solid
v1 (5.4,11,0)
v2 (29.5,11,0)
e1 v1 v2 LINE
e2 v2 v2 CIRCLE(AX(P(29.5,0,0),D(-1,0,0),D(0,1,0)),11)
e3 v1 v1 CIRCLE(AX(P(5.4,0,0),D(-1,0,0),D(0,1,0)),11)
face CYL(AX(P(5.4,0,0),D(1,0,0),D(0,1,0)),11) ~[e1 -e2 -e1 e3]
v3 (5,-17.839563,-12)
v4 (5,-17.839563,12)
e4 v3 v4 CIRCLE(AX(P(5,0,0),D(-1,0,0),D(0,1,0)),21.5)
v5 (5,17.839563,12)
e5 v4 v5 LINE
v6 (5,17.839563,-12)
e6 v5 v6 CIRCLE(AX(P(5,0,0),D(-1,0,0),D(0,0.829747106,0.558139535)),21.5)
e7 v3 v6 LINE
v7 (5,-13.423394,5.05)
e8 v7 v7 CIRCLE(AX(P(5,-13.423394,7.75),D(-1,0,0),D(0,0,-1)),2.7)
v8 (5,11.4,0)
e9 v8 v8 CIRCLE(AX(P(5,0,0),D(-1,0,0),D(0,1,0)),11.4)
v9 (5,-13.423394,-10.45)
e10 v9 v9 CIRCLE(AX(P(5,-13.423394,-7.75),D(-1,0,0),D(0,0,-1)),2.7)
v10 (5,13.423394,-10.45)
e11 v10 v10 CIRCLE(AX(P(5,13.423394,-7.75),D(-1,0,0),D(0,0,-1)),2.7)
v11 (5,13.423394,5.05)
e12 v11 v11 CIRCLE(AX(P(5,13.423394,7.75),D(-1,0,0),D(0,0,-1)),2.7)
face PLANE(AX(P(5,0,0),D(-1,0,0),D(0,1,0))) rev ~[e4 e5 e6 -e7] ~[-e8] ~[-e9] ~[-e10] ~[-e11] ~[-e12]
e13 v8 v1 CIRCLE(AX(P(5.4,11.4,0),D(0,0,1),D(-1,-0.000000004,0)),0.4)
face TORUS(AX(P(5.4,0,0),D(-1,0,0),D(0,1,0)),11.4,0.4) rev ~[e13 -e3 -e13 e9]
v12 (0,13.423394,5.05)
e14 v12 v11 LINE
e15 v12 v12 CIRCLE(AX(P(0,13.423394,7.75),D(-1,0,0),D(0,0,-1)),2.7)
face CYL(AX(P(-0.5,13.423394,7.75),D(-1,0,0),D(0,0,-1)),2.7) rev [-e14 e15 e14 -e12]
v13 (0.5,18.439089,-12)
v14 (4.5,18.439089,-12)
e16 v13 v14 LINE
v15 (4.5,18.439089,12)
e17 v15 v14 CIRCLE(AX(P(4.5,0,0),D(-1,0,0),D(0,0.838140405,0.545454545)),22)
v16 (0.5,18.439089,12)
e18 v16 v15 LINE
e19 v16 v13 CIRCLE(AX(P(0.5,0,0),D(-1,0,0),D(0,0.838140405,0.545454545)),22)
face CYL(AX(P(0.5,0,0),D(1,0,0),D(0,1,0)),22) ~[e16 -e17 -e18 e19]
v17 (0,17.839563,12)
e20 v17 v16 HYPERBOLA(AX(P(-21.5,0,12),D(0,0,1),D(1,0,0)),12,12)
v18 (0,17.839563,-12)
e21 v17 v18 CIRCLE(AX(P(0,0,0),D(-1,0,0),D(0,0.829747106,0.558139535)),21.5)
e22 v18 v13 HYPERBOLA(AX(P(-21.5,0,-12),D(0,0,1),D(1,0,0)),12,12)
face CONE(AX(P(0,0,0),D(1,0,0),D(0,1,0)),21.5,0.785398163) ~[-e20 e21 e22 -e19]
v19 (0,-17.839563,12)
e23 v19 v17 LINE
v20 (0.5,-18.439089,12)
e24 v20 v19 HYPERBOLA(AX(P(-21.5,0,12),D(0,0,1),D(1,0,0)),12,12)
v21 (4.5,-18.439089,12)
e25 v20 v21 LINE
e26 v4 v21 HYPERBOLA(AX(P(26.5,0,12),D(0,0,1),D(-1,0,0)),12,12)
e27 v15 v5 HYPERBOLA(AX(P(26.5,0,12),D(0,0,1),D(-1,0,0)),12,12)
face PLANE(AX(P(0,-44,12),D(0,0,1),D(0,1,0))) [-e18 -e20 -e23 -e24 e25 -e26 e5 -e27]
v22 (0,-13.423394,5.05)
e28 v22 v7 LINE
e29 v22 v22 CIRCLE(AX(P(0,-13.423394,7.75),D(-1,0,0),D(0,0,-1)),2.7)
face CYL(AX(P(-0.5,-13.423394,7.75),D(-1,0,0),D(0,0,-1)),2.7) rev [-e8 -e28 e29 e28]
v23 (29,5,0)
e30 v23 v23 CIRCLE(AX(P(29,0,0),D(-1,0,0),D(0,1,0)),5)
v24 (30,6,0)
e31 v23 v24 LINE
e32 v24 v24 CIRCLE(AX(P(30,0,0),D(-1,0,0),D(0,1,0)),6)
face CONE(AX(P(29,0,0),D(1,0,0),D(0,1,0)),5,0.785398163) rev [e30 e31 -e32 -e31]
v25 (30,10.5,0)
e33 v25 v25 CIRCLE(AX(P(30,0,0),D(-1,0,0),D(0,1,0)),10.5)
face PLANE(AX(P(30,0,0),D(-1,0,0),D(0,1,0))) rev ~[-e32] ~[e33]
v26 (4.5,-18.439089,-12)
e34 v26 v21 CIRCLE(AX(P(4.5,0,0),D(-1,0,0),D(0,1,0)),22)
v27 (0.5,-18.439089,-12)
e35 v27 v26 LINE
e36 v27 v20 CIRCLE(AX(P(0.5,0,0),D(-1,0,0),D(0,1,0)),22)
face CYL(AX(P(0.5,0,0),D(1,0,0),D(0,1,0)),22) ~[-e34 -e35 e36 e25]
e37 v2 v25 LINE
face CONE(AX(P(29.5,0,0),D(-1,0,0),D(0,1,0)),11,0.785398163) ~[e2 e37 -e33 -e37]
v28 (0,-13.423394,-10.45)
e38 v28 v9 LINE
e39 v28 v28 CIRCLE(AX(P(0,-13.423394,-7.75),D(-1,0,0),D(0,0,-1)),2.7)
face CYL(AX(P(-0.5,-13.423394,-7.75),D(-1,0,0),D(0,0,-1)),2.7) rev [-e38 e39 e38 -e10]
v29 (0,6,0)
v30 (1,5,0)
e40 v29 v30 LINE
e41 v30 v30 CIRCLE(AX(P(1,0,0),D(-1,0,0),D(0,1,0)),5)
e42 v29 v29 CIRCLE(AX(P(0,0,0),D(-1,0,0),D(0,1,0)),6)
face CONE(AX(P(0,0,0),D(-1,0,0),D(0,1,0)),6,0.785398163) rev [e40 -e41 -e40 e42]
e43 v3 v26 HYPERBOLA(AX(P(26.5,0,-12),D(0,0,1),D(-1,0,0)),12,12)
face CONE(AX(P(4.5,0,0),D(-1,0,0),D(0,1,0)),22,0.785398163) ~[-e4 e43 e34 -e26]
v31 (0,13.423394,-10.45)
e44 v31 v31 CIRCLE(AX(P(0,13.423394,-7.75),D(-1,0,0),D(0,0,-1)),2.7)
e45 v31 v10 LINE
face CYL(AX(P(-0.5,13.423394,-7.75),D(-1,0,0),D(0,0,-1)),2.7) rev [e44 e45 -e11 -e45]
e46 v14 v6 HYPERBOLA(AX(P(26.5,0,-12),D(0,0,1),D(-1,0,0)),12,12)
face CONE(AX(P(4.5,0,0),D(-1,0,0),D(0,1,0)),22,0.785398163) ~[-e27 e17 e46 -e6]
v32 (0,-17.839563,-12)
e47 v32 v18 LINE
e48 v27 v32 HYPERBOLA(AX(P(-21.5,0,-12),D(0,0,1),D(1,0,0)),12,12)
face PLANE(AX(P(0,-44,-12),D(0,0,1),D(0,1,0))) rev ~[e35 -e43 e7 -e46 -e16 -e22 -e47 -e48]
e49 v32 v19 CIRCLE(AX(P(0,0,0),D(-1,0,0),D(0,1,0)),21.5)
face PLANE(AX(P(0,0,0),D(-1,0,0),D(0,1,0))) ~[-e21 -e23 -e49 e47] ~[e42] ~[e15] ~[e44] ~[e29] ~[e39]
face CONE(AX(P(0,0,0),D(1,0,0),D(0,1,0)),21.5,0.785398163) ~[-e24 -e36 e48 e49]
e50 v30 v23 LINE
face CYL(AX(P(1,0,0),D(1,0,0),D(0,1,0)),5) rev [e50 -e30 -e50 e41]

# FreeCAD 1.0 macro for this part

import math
import FreeCAD as App
import Part
import Sketcher
Q = App.Units.Quantity

doc = App.newDocument("Part")
params = doc.addObject("Spreadsheet::Sheet", "Params")
for row, (alias, value) in enumerate([
    ("sketch1_radius", "0.4 mm"),
    ("sketch1_width", "30 mm"),
    ("sketch1_width2", "4 mm"),
    ("sketch1_width3", "24.1 mm"),
    ("sketch1_height", "21.5 mm"),
    ("revolution_angle", "360 deg"),
    ("sketch2_width", "30 mm"),
    ("sketch2_width2", "28 mm"),
    ("sketch2_height", "6 mm"),
    ("groove_angle", "360 deg"),
    ("sketch3_width", "132 mm"),
    ("sketch3_width2", "88 mm"),
    ("sketch3_height", "48 mm"),
    ("sketch3_height2", "24 mm"),
    ("sketch4_diameter", "5.4 mm"),
    ("pocket2_length", "6 mm"),
    ("sketch5_diameter", "5.4 mm"),
    ("pocket3_length", "6 mm"),
    ("sketch6_diameter", "5.4 mm"),
    ("pocket4_length", "6 mm"),
    ("sketch7_diameter", "5.4 mm"),
    ("pocket5_length", "6 mm"),
], start=1):
    params.set(f"A{row}", alias)
    params.set(f"B{row}", "=" + value)
    params.setAlias(f"B{row}", alias)

body = doc.addObject("PartDesign::Body", "Body")

# Sketch on XY plane
sketch1 = doc.addObject("Sketcher::SketchObject", "Sketch")
body.addObject(sketch1)
sketch1.AttachmentSupport = (doc.XY_Plane, [""])
sketch1.MapMode = "FlatFace"
sketch1.addGeometry(Part.LineSegment(App.Vector(0, 21.5, 0), App.Vector(0, 0, 0)), False)
sketch1.addGeometry(Part.LineSegment(App.Vector(0, 0, 0), App.Vector(30, 0, 0)), False)
sketch1.addGeometry(Part.LineSegment(App.Vector(30, 0, 0), App.Vector(30, 10.5, 0)), False)
sketch1.addGeometry(Part.LineSegment(App.Vector(30, 10.5, 0), App.Vector(29.5, 11, 0)), False)
sketch1.addGeometry(Part.LineSegment(App.Vector(29.5, 11, 0), App.Vector(5.4, 11, 0)), False)
sketch1.addGeometry(Part.ArcOfCircle(Part.Circle(App.Vector(5.4, 11.4, 0), App.Vector(0, 0, 1), 0.4), math.radians(-180), math.radians(-90)), False)
sketch1.addGeometry(Part.LineSegment(App.Vector(5, 11.4, 0), App.Vector(5, 21.5, 0)), False)
sketch1.addGeometry(Part.LineSegment(App.Vector(5, 21.5, 0), App.Vector(4.5, 22, 0)), False)
sketch1.addGeometry(Part.LineSegment(App.Vector(4.5, 22, 0), App.Vector(0.5, 22, 0)), False)
sketch1.addGeometry(Part.LineSegment(App.Vector(0.5, 22, 0), App.Vector(0, 21.5, 0)), False)
sketch1.addConstraint(Sketcher.Constraint("Coincident", 0, 2, 1, 1))
sketch1.addConstraint(Sketcher.Constraint("Coincident", 1, 2, 2, 1))
sketch1.addConstraint(Sketcher.Constraint("Coincident", 2, 2, 3, 1))
sketch1.addConstraint(Sketcher.Constraint("Coincident", 3, 2, 4, 1))
sketch1.addConstraint(Sketcher.Constraint("Tangent", 4, 2, 5, 2))
sketch1.addConstraint(Sketcher.Constraint("Tangent", 5, 1, 6, 1))
sketch1.addConstraint(Sketcher.Constraint("Coincident", 6, 2, 7, 1))
sketch1.addConstraint(Sketcher.Constraint("Coincident", 7, 2, 8, 1))
sketch1.addConstraint(Sketcher.Constraint("Coincident", 8, 2, 9, 1))
sketch1.addConstraint(Sketcher.Constraint("Coincident", 9, 2, 0, 1))
sketch1.addConstraint(Sketcher.Constraint("Vertical", 0))
sketch1.addConstraint(Sketcher.Constraint("Horizontal", 1))
sketch1.addConstraint(Sketcher.Constraint("Vertical", 2))
sketch1.addConstraint(Sketcher.Constraint("Horizontal", 4))
sketch1.addConstraint(Sketcher.Constraint("Vertical", 6))
sketch1.addConstraint(Sketcher.Constraint("Horizontal", 8))
sketch1.addConstraint(Sketcher.Constraint("Coincident", 0, 2, -1, 1))
sketch1.addConstraint(Sketcher.Constraint("Parallel", 3, 7))
sketch1.addConstraint(Sketcher.Constraint("Perpendicular", 7, 9))
sketch1.addConstraint(Sketcher.Constraint("Horizontal", 6, 2, 9, 2))
sketch1.addConstraint(Sketcher.Constraint("Equal", 3, 7))
sketch1.addConstraint(Sketcher.Constraint("Equal", 7, 9))
sketch1.addConstraint(Sketcher.Constraint("Radius", 5, Q("0.4 mm")))
sketch1.addConstraint(Sketcher.Constraint("DistanceX", 1, 1, 1, 2, Q("30 mm")))
sketch1.addConstraint(Sketcher.Constraint("DistanceX", 8, 2, 8, 1, Q("4 mm")))
sketch1.addConstraint(Sketcher.Constraint("DistanceX", 4, 2, 4, 1, Q("24.1 mm")))
sketch1.addConstraint(Sketcher.Constraint("DistanceY", 0, 2, 0, 1, Q("21.5 mm")))
sketch1.addConstraint(Sketcher.Constraint("DistanceY", 2, 1, 2, 2, Q("10.5 mm")))
sketch1.setExpression("Constraints[22]", "Params.sketch1_radius")
sketch1.setExpression("Constraints[23]", "Params.sketch1_width")
sketch1.setExpression("Constraints[24]", "Params.sketch1_width2")
sketch1.setExpression("Constraints[25]", "Params.sketch1_width3")
sketch1.setExpression("Constraints[26]", "Params.sketch1_height")
revolution = doc.addObject("PartDesign::Revolution", "Revolution")
body.addObject(revolution)
revolution.Profile = sketch1
revolution.ReferenceAxis = (sketch1, ["H_Axis"])
revolution.setExpression("Angle", "Params.revolution_angle")

# Sketch on XY plane
sketch2 = doc.addObject("Sketcher::SketchObject", "Sketch001")
body.addObject(sketch2)
sketch2.AttachmentSupport = (doc.XY_Plane, [""])
sketch2.MapMode = "FlatFace"
sketch2.addGeometry(Part.LineSegment(App.Vector(0, 6, 0), App.Vector(0, 0, 0)), False)
sketch2.addGeometry(Part.LineSegment(App.Vector(0, 0, 0), App.Vector(30, 0, 0)), False)
sketch2.addGeometry(Part.LineSegment(App.Vector(30, 0, 0), App.Vector(30, 6, 0)), False)
sketch2.addGeometry(Part.LineSegment(App.Vector(30, 6, 0), App.Vector(29, 5, 0)), False)
sketch2.addGeometry(Part.LineSegment(App.Vector(29, 5, 0), App.Vector(1, 5, 0)), False)
sketch2.addGeometry(Part.LineSegment(App.Vector(1, 5, 0), App.Vector(0, 6, 0)), False)
sketch2.addConstraint(Sketcher.Constraint("Coincident", 0, 2, 1, 1))
sketch2.addConstraint(Sketcher.Constraint("Coincident", 1, 2, 2, 1))
sketch2.addConstraint(Sketcher.Constraint("Coincident", 2, 2, 3, 1))
sketch2.addConstraint(Sketcher.Constraint("Coincident", 3, 2, 4, 1))
sketch2.addConstraint(Sketcher.Constraint("Coincident", 4, 2, 5, 1))
sketch2.addConstraint(Sketcher.Constraint("Coincident", 5, 2, 0, 1))
sketch2.addConstraint(Sketcher.Constraint("Vertical", 0))
sketch2.addConstraint(Sketcher.Constraint("Horizontal", 1))
sketch2.addConstraint(Sketcher.Constraint("Vertical", 2))
sketch2.addConstraint(Sketcher.Constraint("Horizontal", 4))
sketch2.addConstraint(Sketcher.Constraint("Coincident", 0, 2, -1, 1))
sketch2.addConstraint(Sketcher.Constraint("Perpendicular", 3, 5))
sketch2.addConstraint(Sketcher.Constraint("Horizontal", 2, 2, 5, 2))
sketch2.addConstraint(Sketcher.Constraint("Equal", 3, 5))
sketch2.addConstraint(Sketcher.Constraint("DistanceX", 1, 1, 1, 2, Q("30 mm")))
sketch2.addConstraint(Sketcher.Constraint("DistanceX", 4, 2, 4, 1, Q("28 mm")))
sketch2.addConstraint(Sketcher.Constraint("DistanceY", 0, 2, 0, 1, Q("6 mm")))
sketch2.setExpression("Constraints[14]", "Params.sketch2_width")
sketch2.setExpression("Constraints[15]", "Params.sketch2_width2")
sketch2.setExpression("Constraints[16]", "Params.sketch2_height")
groove = doc.addObject("PartDesign::Groove", "Groove")
body.addObject(groove)
groove.Profile = sketch2
groove.ReferenceAxis = (sketch2, ["H_Axis"])
groove.setExpression("Angle", "Params.groove_angle")

# Sketch on YZ plane
sketch3 = doc.addObject("Sketcher::SketchObject", "Sketch002")
body.addObject(sketch3)
sketch3.AttachmentSupport = (doc.YZ_Plane, [""])
sketch3.MapMode = "FlatFace"
sketch3.addGeometry(Part.LineSegment(App.Vector(66, 24, 0), App.Vector(-66, 24, 0)), False)
sketch3.addGeometry(Part.LineSegment(App.Vector(-66, 24, 0), App.Vector(-66, -24, 0)), False)
sketch3.addGeometry(Part.LineSegment(App.Vector(-66, -24, 0), App.Vector(66, -24, 0)), False)
sketch3.addGeometry(Part.LineSegment(App.Vector(66, -24, 0), App.Vector(66, 24, 0)), False)
sketch3.addGeometry(Part.LineSegment(App.Vector(-44, -12, 0), App.Vector(-44, 12, 0)), False)
sketch3.addGeometry(Part.LineSegment(App.Vector(-44, 12, 0), App.Vector(44, 12, 0)), False)
sketch3.addGeometry(Part.LineSegment(App.Vector(44, 12, 0), App.Vector(44, -12, 0)), False)
sketch3.addGeometry(Part.LineSegment(App.Vector(44, -12, 0), App.Vector(-44, -12, 0)), False)
sketch3.addConstraint(Sketcher.Constraint("Coincident", 0, 2, 1, 1))
sketch3.addConstraint(Sketcher.Constraint("Coincident", 1, 2, 2, 1))
sketch3.addConstraint(Sketcher.Constraint("Coincident", 2, 2, 3, 1))
sketch3.addConstraint(Sketcher.Constraint("Coincident", 3, 2, 0, 1))
sketch3.addConstraint(Sketcher.Constraint("Coincident", 4, 2, 5, 1))
sketch3.addConstraint(Sketcher.Constraint("Coincident", 5, 2, 6, 1))
sketch3.addConstraint(Sketcher.Constraint("Coincident", 6, 2, 7, 1))
sketch3.addConstraint(Sketcher.Constraint("Coincident", 7, 2, 4, 1))
sketch3.addConstraint(Sketcher.Constraint("Horizontal", 0))
sketch3.addConstraint(Sketcher.Constraint("Vertical", 1))
sketch3.addConstraint(Sketcher.Constraint("Horizontal", 2))
sketch3.addConstraint(Sketcher.Constraint("Vertical", 3))
sketch3.addConstraint(Sketcher.Constraint("Vertical", 4))
sketch3.addConstraint(Sketcher.Constraint("Horizontal", 5))
sketch3.addConstraint(Sketcher.Constraint("Vertical", 6))
sketch3.addConstraint(Sketcher.Constraint("Horizontal", 7))
sketch3.addConstraint(Sketcher.Constraint("Symmetric", 0, 2, 2, 2, -1, 1))
sketch3.addConstraint(Sketcher.Constraint("Symmetric", 4, 2, 6, 2, -1, 1))
sketch3.addConstraint(Sketcher.Constraint("DistanceX", 0, 2, 0, 1, Q("132 mm")))
sketch3.addConstraint(Sketcher.Constraint("DistanceX", 5, 1, 5, 2, Q("88 mm")))
sketch3.addConstraint(Sketcher.Constraint("DistanceY", 1, 2, 1, 1, Q("48 mm")))
sketch3.addConstraint(Sketcher.Constraint("DistanceY", 4, 1, 4, 2, Q("24 mm")))
sketch3.setExpression("Constraints[18]", "Params.sketch3_width")
sketch3.setExpression("Constraints[19]", "Params.sketch3_width2")
sketch3.setExpression("Constraints[20]", "Params.sketch3_height")
sketch3.setExpression("Constraints[21]", "Params.sketch3_height2")
pocket1 = doc.addObject("PartDesign::Pocket", "Pocket")
body.addObject(pocket1)
pocket1.Profile = sketch3
pocket1.Type = "ThroughAll"
pocket1.Midplane = True

# Sketch on YZ plane
sketch4 = doc.addObject("Sketcher::SketchObject", "Sketch003")
body.addObject(sketch4)
sketch4.AttachmentSupport = (doc.YZ_Plane, [""])
sketch4.MapMode = "FlatFace"
sketch4.AttachmentOffset = App.Placement(App.Vector(0, 0, -0.5), App.Rotation())
sketch4.addGeometry(Part.Circle(App.Vector(13.423394, 7.75, 0), App.Vector(0, 0, 1), 2.7), False)
sketch4.addConstraint(Sketcher.Constraint("Diameter", 0, Q("5.4 mm")))
sketch4.addConstraint(Sketcher.Constraint("DistanceY", -1, 1, 0, 3, Q("7.75 mm")))
sketch4.addConstraint(Sketcher.Constraint("DistanceX", -1, 1, 0, 3, Q("13.423394 mm")))
sketch4.setExpression("Constraints[0]", "Params.sketch4_diameter")
pocket2 = doc.addObject("PartDesign::Pocket", "Pocket001")
body.addObject(pocket2)
pocket2.Profile = sketch4
pocket2.setExpression("Length", "Params.pocket2_length")
pocket2.Reversed = True

# Sketch on YZ plane
sketch5 = doc.addObject("Sketcher::SketchObject", "Sketch004")
body.addObject(sketch5)
sketch5.AttachmentSupport = (doc.YZ_Plane, [""])
sketch5.MapMode = "FlatFace"
sketch5.AttachmentOffset = App.Placement(App.Vector(0, 0, -0.5), App.Rotation())
sketch5.addGeometry(Part.Circle(App.Vector(-13.423394, 7.75, 0), App.Vector(0, 0, 1), 2.7), False)
sketch5.addConstraint(Sketcher.Constraint("Diameter", 0, Q("5.4 mm")))
sketch5.addConstraint(Sketcher.Constraint("DistanceY", -1, 1, 0, 3, Q("7.75 mm")))
sketch5.addConstraint(Sketcher.Constraint("DistanceX", 0, 3, -1, 1, Q("13.423394 mm")))
sketch5.setExpression("Constraints[0]", "Params.sketch5_diameter")
pocket3 = doc.addObject("PartDesign::Pocket", "Pocket002")
body.addObject(pocket3)
pocket3.Profile = sketch5
pocket3.setExpression("Length", "Params.pocket3_length")
pocket3.Reversed = True

# Sketch on YZ plane
sketch6 = doc.addObject("Sketcher::SketchObject", "Sketch005")
body.addObject(sketch6)
sketch6.AttachmentSupport = (doc.YZ_Plane, [""])
sketch6.MapMode = "FlatFace"
sketch6.AttachmentOffset = App.Placement(App.Vector(0, 0, -0.5), App.Rotation())
sketch6.addGeometry(Part.Circle(App.Vector(-13.423394, -7.75, 0), App.Vector(0, 0, 1), 2.7), False)
sketch6.addConstraint(Sketcher.Constraint("Diameter", 0, Q("5.4 mm")))
sketch6.addConstraint(Sketcher.Constraint("DistanceY", 0, 3, -1, 1, Q("7.75 mm")))
sketch6.addConstraint(Sketcher.Constraint("DistanceX", 0, 3, -1, 1, Q("13.423394 mm")))
sketch6.setExpression("Constraints[0]", "Params.sketch6_diameter")
pocket4 = doc.addObject("PartDesign::Pocket", "Pocket003")
body.addObject(pocket4)
pocket4.Profile = sketch6
pocket4.setExpression("Length", "Params.pocket4_length")
pocket4.Reversed = True

# Sketch on YZ plane
sketch7 = doc.addObject("Sketcher::SketchObject", "Sketch006")
body.addObject(sketch7)
sketch7.AttachmentSupport = (doc.YZ_Plane, [""])
sketch7.MapMode = "FlatFace"
sketch7.AttachmentOffset = App.Placement(App.Vector(0, 0, -0.5), App.Rotation())
sketch7.addGeometry(Part.Circle(App.Vector(13.423394, -7.75, 0), App.Vector(0, 0, 1), 2.7), False)
sketch7.addConstraint(Sketcher.Constraint("Diameter", 0, Q("5.4 mm")))
sketch7.addConstraint(Sketcher.Constraint("DistanceY", 0, 3, -1, 1, Q("7.75 mm")))
sketch7.addConstraint(Sketcher.Constraint("DistanceX", -1, 1, 0, 3, Q("13.423394 mm")))
sketch7.setExpression("Constraints[0]", "Params.sketch7_diameter")
pocket5 = doc.addObject("PartDesign::Pocket", "Pocket004")
body.addObject(pocket5)
pocket5.Profile = sketch7
pocket5.setExpression("Length", "Params.pocket5_length")
pocket5.Reversed = True

doc.recompute()
